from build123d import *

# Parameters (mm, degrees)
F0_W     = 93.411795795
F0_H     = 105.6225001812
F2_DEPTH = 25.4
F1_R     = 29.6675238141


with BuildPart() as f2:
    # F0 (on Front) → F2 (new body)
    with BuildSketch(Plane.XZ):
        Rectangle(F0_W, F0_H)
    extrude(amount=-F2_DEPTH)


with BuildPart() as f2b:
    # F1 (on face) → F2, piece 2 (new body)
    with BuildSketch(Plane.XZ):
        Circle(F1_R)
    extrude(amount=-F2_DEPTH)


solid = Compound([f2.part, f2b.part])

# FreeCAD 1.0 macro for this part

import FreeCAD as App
import Part
import Sketcher
from FreeCAD import Vector
Q = App.Units.Quantity


def add_polygon(sketch, points):
    """Adds a closed chain of lines whose ends are joined by coincident constraints."""
    first, n = sketch.GeometryCount, len(points)
    for a, b in zip(points, points[1:] + points[:1]):
        sketch.addGeometry(Part.LineSegment(App.Vector(*a, 0), App.Vector(*b, 0)), False)
    for i in range(n):
        sketch.addConstraint(Sketcher.Constraint("Coincident", first + i, 2, first + (i + 1) % n, 1))

doc = App.newDocument("Part")
params = doc.addObject("Spreadsheet::Sheet", "Params")
for row, (alias, value) in enumerate([
    ("pad1_length", "1 in"),
    ("pad2_length", "1 in"),
], start=1):
    params.set(f"A{row}", alias)
    params.set(f"B{row}", "=" + value)
    params.setAlias(f"B{row}", alias)

body = doc.addObject("PartDesign::Body", "Body")

sketch1 = body.newObject("Sketcher::SketchObject", "Sketch")
sketch1.AttachmentSupport = (doc.getObject("XZ_Plane"), [""])
sketch1.MapMode = "FlatFace"
add_polygon(sketch1, [(-46.705898, 52.81125), (-46.705898, -52.81125), (46.705898, -52.81125), (46.705898, 52.81125)])
sketch1.addConstraint([
    Sketcher.Constraint("Vertical", 0),
    Sketcher.Constraint("Horizontal", 1),
    Sketcher.Constraint("Vertical", 2),
    Sketcher.Constraint("Horizontal", 3),
    Sketcher.Constraint("Symmetric", 0, 2, 2, 2, -1, 1),
    Sketcher.Constraint("DistanceY", 0, 2, 0, 1, Q("105.6225 mm")),
    Sketcher.Constraint("DistanceX", 1, 1, 1, 2, Q("93.411796 mm")),
])
pad1 = body.newObject("PartDesign::Pad", "Pad")
pad1.Profile = sketch1
pad1.setExpression("Length", "Params.pad1_length")
pad1.Reversed = True
body2 = doc.addObject("PartDesign::Body", "Body001")

sketch2 = body2.newObject("Sketcher::SketchObject", "Sketch001")
sketch2.AttachmentSupport = (doc.getObject("XZ_Plane001"), [""])
sketch2.MapMode = "FlatFace"
sketch2.addGeometry(Part.Circle(Vector(0, 0, 0), Vector(0, 0, 1), 29.667524), False)
sketch2.addConstraint([
    Sketcher.Constraint("Coincident", 0, 3, -1, 1),
    Sketcher.Constraint("Diameter", 0, Q("59.335048 mm")),
])
pad2 = body2.newObject("PartDesign::Pad", "Pad001")
pad2.Profile = sketch2
pad2.setExpression("Length", "Params.pad2_length")
pad2.Reversed = True

doc.recompute()
